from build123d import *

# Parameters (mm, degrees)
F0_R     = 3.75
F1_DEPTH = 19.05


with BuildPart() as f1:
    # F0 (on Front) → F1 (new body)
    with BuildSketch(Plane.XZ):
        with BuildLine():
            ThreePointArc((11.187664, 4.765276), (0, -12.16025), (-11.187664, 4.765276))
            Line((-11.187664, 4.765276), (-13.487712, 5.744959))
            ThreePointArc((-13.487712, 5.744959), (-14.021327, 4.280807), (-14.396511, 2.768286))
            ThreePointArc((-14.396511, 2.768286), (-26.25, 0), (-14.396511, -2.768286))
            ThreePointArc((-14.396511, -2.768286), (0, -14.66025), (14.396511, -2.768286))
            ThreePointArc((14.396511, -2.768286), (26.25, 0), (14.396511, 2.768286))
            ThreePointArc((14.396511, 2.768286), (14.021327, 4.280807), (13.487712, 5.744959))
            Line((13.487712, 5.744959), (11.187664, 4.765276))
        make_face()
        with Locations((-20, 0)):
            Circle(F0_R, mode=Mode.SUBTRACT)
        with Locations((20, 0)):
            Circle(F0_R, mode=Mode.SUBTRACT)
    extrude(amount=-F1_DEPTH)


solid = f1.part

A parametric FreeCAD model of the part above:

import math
import FreeCAD as App
import Part
import Sketcher
Q = App.Units.Quantity

doc = App.newDocument("Part")
body = doc.addObject("PartDesign::Body", "Body")

sketch1 = doc.addObject("Sketcher::SketchObject", "Sketch")
body.addObject(sketch1)
sketch1.AttachmentSupport = (doc.XZ_Plane, [""])
sketch1.MapMode = "FlatFace"
sketch1.addGeometry([
    Part.ArcOfCircle(Part.Circle(App.Vector(0, 0, 0), App.Vector(0, 0, 1), 12.16025), math.radians(156.928895), math.radians(383.071105)),
    Part.LineSegment(App.Vector(-11.187664, 4.765276, 0), App.Vector(-13.487712, 5.744959, 0)),
    Part.ArcOfCircle(Part.Circle(App.Vector(0.000076, -0.000024, 0), App.Vector(0, 0, 1), 14.660329), math.radians(156.928923), math.radians(169.115486)),
    Part.ArcOfCircle(Part.Circle(App.Vector(-20, 0, 0), App.Vector(0, 0, 1), 6.25), math.radians(26.290706), math.radians(333.709294)),
    Part.ArcOfCircle(Part.Circle(App.Vector(0, 0, 0), App.Vector(0, 0, 1), 14.66025), math.radians(-169.115523), math.radians(-10.884477)),
    Part.ArcOfCircle(Part.Circle(App.Vector(20, 0, 0), App.Vector(0, 0, 1), 6.25), math.radians(-153.709294), math.radians(153.709294)),
    Part.ArcOfCircle(Part.Circle(App.Vector(-0.000076, -0.000024, 0), App.Vector(0, 0, 1), 14.660329), math.radians(10.884514), math.radians(23.071077)),
    Part.LineSegment(App.Vector(13.487712, 5.744959, 0), App.Vector(11.187664, 4.765276, 0)),
    Part.Circle(App.Vector(-20, 0, 0), App.Vector(0, 0, 1), 3.75),
    Part.Circle(App.Vector(20, 0, 0), App.Vector(0, 0, 1), 3.75),
], False)
sketch1.addConstraint([
    Sketcher.Constraint("Coincident", 0, 1, 1, 1),
    Sketcher.Constraint("Coincident", 1, 2, 2, 1),
    Sketcher.Constraint("Coincident", 2, 2, 3, 1),
    Sketcher.Constraint("Coincident", 3, 2, 4, 1),
    Sketcher.Constraint("Coincident", 4, 2, 5, 1),
    Sketcher.Constraint("Coincident", 5, 2, 6, 1),
    Sketcher.Constraint("Coincident", 6, 2, 7, 1),
    Sketcher.Constraint("Coincident", 7, 2, 0, 2),
    Sketcher.Constraint("Coincident", 0, 3, -1, 1),
    Sketcher.Constraint("Coincident", 4, 3, -1, 1),
    Sketcher.Constraint("Coincident", 8, 3, 3, 3),
    Sketcher.Constraint("Coincident", 9, 3, 5, 3),
    Sketcher.Constraint("Equal", 3, 5),
    Sketcher.Constraint("Equal", 2, 6),
    Sketcher.Constraint("Equal", 8, 9),
    Sketcher.Constraint("Symmetric", 3, 3, 5, 3, -1, 1),
    Sketcher.Constraint("Symmetric", 2, 3, 6, 3, -2),
    Sketcher.Constraint("Symmetric", 2, 2, 3, 2, -1),
    Sketcher.Constraint("Horizontal", 1, 2, 6, 2),
    Sketcher.Constraint("Horizontal", 0, 1, 7, 2),
    Sketcher.Constraint("Diameter", 8, Q("7.5 mm")),
    Sketcher.Constraint("Radius", 3, Q("6.25 mm")),
    Sketcher.Constraint("DistanceX", 3, 3, -1, 1, Q("20 mm")),
    Sketcher.Constraint("Distance", 1, Q("2.5 mm")),
    Sketcher.Constraint("Radius", 0, Q("12.16025 mm")),
    Sketcher.Constraint("Radius", 2, Q("14.660329 mm")),
    Sketcher.Constraint("Radius", 4, Q("14.66025 mm")),
    Sketcher.Constraint("DistanceY", 6, 3, 0, 1, Q("4.7653 mm")),
    Sketcher.Constraint("DistanceX", 2, 2, 1, 2, Q("0.908799 mm")),
])
pad1 = doc.addObject("PartDesign::Pad", "Pad")
body.addObject(pad1)
pad1.Profile = sketch1
pad1.Length = 19.05
pad1.Reversed = True

doc.recompute()
